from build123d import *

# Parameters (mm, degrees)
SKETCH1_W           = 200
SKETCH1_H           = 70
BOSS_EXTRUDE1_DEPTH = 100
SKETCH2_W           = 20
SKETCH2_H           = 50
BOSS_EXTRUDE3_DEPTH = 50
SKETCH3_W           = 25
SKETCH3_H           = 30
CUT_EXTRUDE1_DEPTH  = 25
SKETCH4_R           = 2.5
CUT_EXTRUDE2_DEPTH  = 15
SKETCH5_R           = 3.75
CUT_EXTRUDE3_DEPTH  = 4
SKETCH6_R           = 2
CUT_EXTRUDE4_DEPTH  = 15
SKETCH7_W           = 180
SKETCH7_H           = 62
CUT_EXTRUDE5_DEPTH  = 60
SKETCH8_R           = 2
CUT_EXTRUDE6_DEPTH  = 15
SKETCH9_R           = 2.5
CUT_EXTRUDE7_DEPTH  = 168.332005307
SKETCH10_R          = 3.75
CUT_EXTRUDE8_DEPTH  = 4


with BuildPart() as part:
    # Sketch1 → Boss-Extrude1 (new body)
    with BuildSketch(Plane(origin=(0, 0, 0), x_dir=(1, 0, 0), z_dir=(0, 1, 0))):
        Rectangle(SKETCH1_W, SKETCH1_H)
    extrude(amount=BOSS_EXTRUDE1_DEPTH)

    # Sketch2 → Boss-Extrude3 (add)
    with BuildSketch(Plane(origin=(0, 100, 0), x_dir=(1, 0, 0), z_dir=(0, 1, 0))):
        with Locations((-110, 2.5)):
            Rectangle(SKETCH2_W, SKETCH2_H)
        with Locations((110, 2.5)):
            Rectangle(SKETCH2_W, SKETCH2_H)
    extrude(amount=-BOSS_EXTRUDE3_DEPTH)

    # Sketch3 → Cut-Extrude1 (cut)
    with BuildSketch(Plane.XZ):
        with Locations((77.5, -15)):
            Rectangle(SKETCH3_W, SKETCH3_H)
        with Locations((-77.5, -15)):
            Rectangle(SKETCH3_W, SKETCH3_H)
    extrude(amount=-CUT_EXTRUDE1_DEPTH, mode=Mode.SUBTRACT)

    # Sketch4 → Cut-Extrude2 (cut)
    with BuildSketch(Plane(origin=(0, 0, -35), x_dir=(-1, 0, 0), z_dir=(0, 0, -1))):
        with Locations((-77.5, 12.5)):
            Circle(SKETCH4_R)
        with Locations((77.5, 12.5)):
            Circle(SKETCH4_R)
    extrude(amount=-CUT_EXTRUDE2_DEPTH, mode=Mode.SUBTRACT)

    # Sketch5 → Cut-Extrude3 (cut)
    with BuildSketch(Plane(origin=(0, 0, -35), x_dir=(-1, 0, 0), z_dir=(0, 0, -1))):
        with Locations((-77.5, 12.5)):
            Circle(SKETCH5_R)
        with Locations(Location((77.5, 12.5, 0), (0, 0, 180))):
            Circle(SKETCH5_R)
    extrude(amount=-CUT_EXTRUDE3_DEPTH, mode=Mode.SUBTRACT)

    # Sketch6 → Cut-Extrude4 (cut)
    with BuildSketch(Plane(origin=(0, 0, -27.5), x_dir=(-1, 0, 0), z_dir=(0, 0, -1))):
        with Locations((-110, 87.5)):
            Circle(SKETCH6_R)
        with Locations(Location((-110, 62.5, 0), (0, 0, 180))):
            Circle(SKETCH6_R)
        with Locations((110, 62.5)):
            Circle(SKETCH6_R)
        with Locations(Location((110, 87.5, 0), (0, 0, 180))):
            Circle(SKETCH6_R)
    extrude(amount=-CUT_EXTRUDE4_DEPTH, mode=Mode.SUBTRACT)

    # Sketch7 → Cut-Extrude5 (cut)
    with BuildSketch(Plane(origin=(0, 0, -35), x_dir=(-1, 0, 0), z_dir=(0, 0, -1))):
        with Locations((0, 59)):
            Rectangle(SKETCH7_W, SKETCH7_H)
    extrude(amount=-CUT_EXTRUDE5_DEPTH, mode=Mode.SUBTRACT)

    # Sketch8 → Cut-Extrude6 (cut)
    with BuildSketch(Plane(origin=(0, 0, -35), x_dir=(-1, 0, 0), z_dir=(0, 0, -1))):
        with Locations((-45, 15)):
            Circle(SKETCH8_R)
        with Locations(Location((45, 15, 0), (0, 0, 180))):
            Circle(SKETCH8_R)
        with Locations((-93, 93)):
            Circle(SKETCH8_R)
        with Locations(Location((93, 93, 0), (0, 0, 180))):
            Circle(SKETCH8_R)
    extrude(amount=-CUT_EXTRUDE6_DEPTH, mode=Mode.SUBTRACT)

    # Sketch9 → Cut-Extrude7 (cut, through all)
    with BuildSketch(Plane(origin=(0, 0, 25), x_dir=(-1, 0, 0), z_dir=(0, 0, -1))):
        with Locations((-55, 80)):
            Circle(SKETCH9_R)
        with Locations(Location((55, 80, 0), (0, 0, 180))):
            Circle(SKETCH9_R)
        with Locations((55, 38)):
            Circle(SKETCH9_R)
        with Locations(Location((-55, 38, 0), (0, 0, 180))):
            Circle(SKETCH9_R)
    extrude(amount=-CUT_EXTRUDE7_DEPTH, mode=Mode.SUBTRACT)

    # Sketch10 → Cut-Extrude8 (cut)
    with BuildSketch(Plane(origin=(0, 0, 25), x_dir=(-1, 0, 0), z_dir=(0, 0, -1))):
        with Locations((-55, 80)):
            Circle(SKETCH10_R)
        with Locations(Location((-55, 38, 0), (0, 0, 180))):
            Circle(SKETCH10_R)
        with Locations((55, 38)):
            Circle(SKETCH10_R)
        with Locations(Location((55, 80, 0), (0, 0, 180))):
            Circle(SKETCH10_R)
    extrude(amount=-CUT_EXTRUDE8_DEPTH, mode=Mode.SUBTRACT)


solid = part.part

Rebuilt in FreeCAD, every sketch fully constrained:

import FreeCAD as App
import Part
import Sketcher

V = App.Vector
Q = App.Units.Quantity

doc = App.newDocument("Part")
body = doc.addObject("PartDesign::Body", "Body")

# Sketch on XZ plane
sketch1 = body.newObject("Sketcher::SketchObject", "Sketch")
sketch1.AttachmentSupport = (doc.getObject("XZ_Plane"), [""])
sketch1.MapMode = "FlatFace"
sketch1.addGeometry(Part.LineSegment(V(-100, -35, 0), V(-100, 35, 0)), False)
sketch1.addGeometry(Part.LineSegment(V(-100, 35, 0), V(100, 35, 0)), False)
sketch1.addGeometry(Part.LineSegment(V(100, 35, 0), V(100, -35, 0)), False)
sketch1.addGeometry(Part.LineSegment(V(100, -35, 0), V(-100, -35, 0)), False)
sketch1.addConstraint(Sketcher.Constraint("Coincident", 0, 2, 1, 1))
sketch1.addConstraint(Sketcher.Constraint("Coincident", 1, 2, 2, 1))
sketch1.addConstraint(Sketcher.Constraint("Coincident", 2, 2, 3, 1))
sketch1.addConstraint(Sketcher.Constraint("Coincident", 3, 2, 0, 1))
sketch1.addConstraint(Sketcher.Constraint("Vertical", 0))
sketch1.addConstraint(Sketcher.Constraint("Horizontal", 1))
sketch1.addConstraint(Sketcher.Constraint("Vertical", 2))
sketch1.addConstraint(Sketcher.Constraint("Horizontal", 3))
sketch1.addConstraint(Sketcher.Constraint("Symmetric", 0, 2, 2, 2, -1, 1))
sketch1.addConstraint(Sketcher.Constraint("DistanceX", 1, 1, 1, 2, Q("200 mm")))
sketch1.addConstraint(Sketcher.Constraint("DistanceY", 0, 1, 0, 2, Q("70 mm")))
pad1 = body.newObject("PartDesign::Pad", "Pad")
pad1.Profile = sketch1
pad1.Length = 100
pad1.Reversed = True

# Sketch on XZ plane
sketch2 = body.newObject("Sketcher::SketchObject", "Sketch001")
sketch2.AttachmentSupport = (doc.getObject("XZ_Plane"), [""])
sketch2.MapMode = "FlatFace"
sketch2.AttachmentOffset = App.Placement(V(0, 0, -100), App.Rotation())
sketch2.addGeometry(Part.LineSegment(V(-120, -27.5, 0), V(-120, 22.5, 0)), False)
sketch2.addGeometry(Part.LineSegment(V(-120, 22.5, 0), V(-100, 22.5, 0)), False)
sketch2.addGeometry(Part.LineSegment(V(-100, 22.5, 0), V(-100, -27.5, 0)), False)
sketch2.addGeometry(Part.LineSegment(V(-100, -27.5, 0), V(-120, -27.5, 0)), False)
sketch2.addGeometry(Part.LineSegment(V(100, -27.5, 0), V(100, 22.5, 0)), False)
sketch2.addGeometry(Part.LineSegment(V(100, 22.5, 0), V(120, 22.5, 0)), False)
sketch2.addGeometry(Part.LineSegment(V(120, 22.5, 0), V(120, -27.5, 0)), False)
sketch2.addGeometry(Part.LineSegment(V(120, -27.5, 0), V(100, -27.5, 0)), False)
sketch2.addConstraint(Sketcher.Constraint("Coincident", 0, 2, 1, 1))
sketch2.addConstraint(Sketcher.Constraint("Coincident", 1, 2, 2, 1))
sketch2.addConstraint(Sketcher.Constraint("Coincident", 2, 2, 3, 1))
sketch2.addConstraint(Sketcher.Constraint("Coincident", 3, 2, 0, 1))
sketch2.addConstraint(Sketcher.Constraint("Coincident", 4, 2, 5, 1))
sketch2.addConstraint(Sketcher.Constraint("Coincident", 5, 2, 6, 1))
sketch2.addConstraint(Sketcher.Constraint("Coincident", 6, 2, 7, 1))
sketch2.addConstraint(Sketcher.Constraint("Coincident", 7, 2, 4, 1))
sketch2.addConstraint(Sketcher.Constraint("Vertical", 0))
sketch2.addConstraint(Sketcher.Constraint("Horizontal", 1))
sketch2.addConstraint(Sketcher.Constraint("Vertical", 2))
sketch2.addConstraint(Sketcher.Constraint("Horizontal", 3))
sketch2.addConstraint(Sketcher.Constraint("Vertical", 4))
sketch2.addConstraint(Sketcher.Constraint("Horizontal", 5))
sketch2.addConstraint(Sketcher.Constraint("Vertical", 6))
sketch2.addConstraint(Sketcher.Constraint("Horizontal", 7))
sketch2.addConstraint(Sketcher.Constraint("Symmetric", 1, 2, 4, 2, -2))
sketch2.addConstraint(Sketcher.Constraint("Symmetric", 3, 2, 6, 2, -2))
sketch2.addConstraint(Sketcher.Constraint("DistanceX", 1, 1, 1, 2, Q("20 mm")))
sketch2.addConstraint(Sketcher.Constraint("DistanceY", 0, 1, 0, 2, Q("50 mm")))
sketch2.addConstraint(Sketcher.Constraint("DistanceX", 0, 2, -1, 1, Q("120 mm")))
sketch2.addConstraint(Sketcher.Constraint("DistanceY", -1, 1, 0, 2, Q("22.5 mm")))
pad2 = body.newObject("PartDesign::Pad", "Pad001")
pad2.Profile = sketch2
pad2.Length = 50

# Sketch on XZ plane
sketch3 = body.newObject("Sketcher::SketchObject", "Sketch002")
sketch3.AttachmentSupport = (doc.getObject("XZ_Plane"), [""])
sketch3.MapMode = "FlatFace"
sketch3.addGeometry(Part.LineSegment(V(65, 0, 0), V(65, -30, 0)), False)
sketch3.addGeometry(Part.LineSegment(V(65, -30, 0), V(90, -30, 0)), False)
sketch3.addGeometry(Part.LineSegment(V(90, -30, 0), V(90, 0, 0)), False)
sketch3.addGeometry(Part.LineSegment(V(90, 0, 0), V(65, 0, 0)), False)
sketch3.addGeometry(Part.LineSegment(V(-90, 0, 0), V(-90, -30, 0)), False)
sketch3.addGeometry(Part.LineSegment(V(-90, -30, 0), V(-65, -30, 0)), False)
sketch3.addGeometry(Part.LineSegment(V(-65, -30, 0), V(-65, 0, 0)), False)
sketch3.addGeometry(Part.LineSegment(V(-65, 0, 0), V(-90, 0, 0)), False)
sketch3.addConstraint(Sketcher.Constraint("Coincident", 0, 2, 1, 1))
sketch3.addConstraint(Sketcher.Constraint("Coincident", 1, 2, 2, 1))
sketch3.addConstraint(Sketcher.Constraint("Coincident", 2, 2, 3, 1))
sketch3.addConstraint(Sketcher.Constraint("Coincident", 3, 2, 0, 1))
sketch3.addConstraint(Sketcher.Constraint("Coincident", 4, 2, 5, 1))
sketch3.addConstraint(Sketcher.Constraint("Coincident", 5, 2, 6, 1))
sketch3.addConstraint(Sketcher.Constraint("Coincident", 6, 2, 7, 1))
sketch3.addConstraint(Sketcher.Constraint("Coincident", 7, 2, 4, 1))
sketch3.addConstraint(Sketcher.Constraint("Vertical", 0))
sketch3.addConstraint(Sketcher.Constraint("Horizontal", 1))
sketch3.addConstraint(Sketcher.Constraint("Vertical", 2))
sketch3.addConstraint(Sketcher.Constraint("Horizontal", 3))
sketch3.addConstraint(Sketcher.Constraint("Vertical", 4))
sketch3.addConstraint(Sketcher.Constraint("Horizontal", 5))
sketch3.addConstraint(Sketcher.Constraint("Vertical", 6))
sketch3.addConstraint(Sketcher.Constraint("Horizontal", 7))
sketch3.addConstraint(Sketcher.Constraint("Symmetric", 3, 2, 6, 2, -1, 1))
sketch3.addConstraint(Sketcher.Constraint("Symmetric", 1, 2, 4, 2, -2))
sketch3.addConstraint(Sketcher.Constraint("PointOnObject", 2, 2, -1))
sketch3.addConstraint(Sketcher.Constraint("DistanceX", 1, 1, 1, 2, Q("25 mm")))
sketch3.addConstraint(Sketcher.Constraint("DistanceY", 0, 2, 0, 1, Q("30 mm")))
sketch3.addConstraint(Sketcher.Constraint("DistanceX", -1, 1, 0, 2, Q("65 mm")))
pocket1 = body.newObject("PartDesign::Pocket", "Pocket")
pocket1.Profile = sketch3
pocket1.Length = 25

# Sketch on XY plane
sketch4 = body.newObject("Sketcher::SketchObject", "Sketch003")
sketch4.AttachmentSupport = (doc.getObject("XY_Plane"), [""])
sketch4.MapMode = "FlatFace"
sketch4.AttachmentOffset = App.Placement(V(0, 0, -35), App.Rotation())
sketch4.addGeometry(Part.Circle(V(77.5, 12.5, 0), V(0, 0, 1), 2.5), False)
sketch4.addGeometry(Part.Circle(V(-77.5, 12.5, 0), V(0, 0, 1), 2.5), False)
sketch4.addConstraint(Sketcher.Constraint("Equal", 0, 1))
sketch4.addConstraint(Sketcher.Constraint("Symmetric", 0, 3, 1, 3, -2))
sketch4.addConstraint(Sketcher.Constraint("Diameter", 0, Q("5 mm")))
sketch4.addConstraint(Sketcher.Constraint("DistanceX", 1, 3, 0, 3, Q("155 mm")))
sketch4.addConstraint(Sketcher.Constraint("DistanceY", -1, 1, 0, 3, Q("12.5 mm")))
pocket2 = body.newObject("PartDesign::Pocket", "Pocket001")
pocket2.Profile = sketch4
pocket2.Length = 15
pocket2.Reversed = True

# Sketch on XY plane
sketch5 = body.newObject("Sketcher::SketchObject", "Sketch004")
sketch5.AttachmentSupport = (doc.getObject("XY_Plane"), [""])
sketch5.MapMode = "FlatFace"
sketch5.AttachmentOffset = App.Placement(V(0, 0, -35), App.Rotation())
sketch5.addGeometry(Part.Circle(V(77.5, 12.5, 0), V(0, 0, 1), 3.75), False)
sketch5.addGeometry(Part.Circle(V(-77.5, 12.5, 0), V(0, 0, 1), 3.75), False)
sketch5.addConstraint(Sketcher.Constraint("Equal", 0, 1))
sketch5.addConstraint(Sketcher.Constraint("Symmetric", 0, 3, 1, 3, -2))
sketch5.addConstraint(Sketcher.Constraint("Diameter", 0, Q("7.5 mm")))
sketch5.addConstraint(Sketcher.Constraint("DistanceX", 1, 3, 0, 3, Q("155 mm")))
sketch5.addConstraint(Sketcher.Constraint("DistanceY", -1, 1, 0, 3, Q("12.5 mm")))
pocket3 = body.newObject("PartDesign::Pocket", "Pocket002")
pocket3.Profile = sketch5
pocket3.Length = 4
pocket3.Reversed = True

# Sketch on XY plane
sketch6 = body.newObject("Sketcher::SketchObject", "Sketch005")
sketch6.AttachmentSupport = (doc.getObject("XY_Plane"), [""])
sketch6.MapMode = "FlatFace"
sketch6.AttachmentOffset = App.Placement(V(0, 0, -27.5), App.Rotation())
sketch6.addGeometry(Part.Circle(V(110, 87.5, 0), V(0, 0, 1), 2), False)
sketch6.addGeometry(Part.Circle(V(110, 62.5, 0), V(0, 0, 1), 2), False)
sketch6.addGeometry(Part.Circle(V(-110, 62.5, 0), V(0, 0, 1), 2), False)
sketch6.addGeometry(Part.Circle(V(-110, 87.5, 0), V(0, 0, 1), 2), False)
sketch6.addConstraint(Sketcher.Constraint("Equal", 0, 1))
sketch6.addConstraint(Sketcher.Constraint("Equal", 1, 2))
sketch6.addConstraint(Sketcher.Constraint("Equal", 2, 3))
sketch6.addConstraint(Sketcher.Constraint("Symmetric", 1, 3, 2, 3, -2))
sketch6.addConstraint(Sketcher.Constraint("Symmetric", 0, 3, 3, 3, -2))
sketch6.addConstraint(Sketcher.Constraint("Vertical", 0, 3, 1, 3))
sketch6.addConstraint(Sketcher.Constraint("Diameter", 0, Q("4 mm")))
sketch6.addConstraint(Sketcher.Constraint("DistanceX", -1, 1, 0, 3, Q("110 mm")))
sketch6.addConstraint(Sketcher.Constraint("DistanceY", 1, 3, 0, 3, Q("25 mm")))
sketch6.addConstraint(Sketcher.Constraint("DistanceY", -1, 1, 0, 3, Q("87.5 mm")))
pocket4 = body.newObject("PartDesign::Pocket", "Pocket003")
pocket4.Profile = sketch6
pocket4.Length = 15
pocket4.Reversed = True

# Sketch on XY plane
sketch7 = body.newObject("Sketcher::SketchObject", "Sketch006")
sketch7.AttachmentSupport = (doc.getObject("XY_Plane"), [""])
sketch7.MapMode = "FlatFace"
sketch7.AttachmentOffset = App.Placement(V(0, 0, -35), App.Rotation())
sketch7.addGeometry(Part.LineSegment(V(90, 90, 0), V(90, 28, 0)), False)
sketch7.addGeometry(Part.LineSegment(V(90, 28, 0), V(-90, 28, 0)), False)
sketch7.addGeometry(Part.LineSegment(V(-90, 28, 0), V(-90, 90, 0)), False)
sketch7.addGeometry(Part.LineSegment(V(-90, 90, 0), V(90, 90, 0)), False)
sketch7.addConstraint(Sketcher.Constraint("Coincident", 0, 2, 1, 1))
sketch7.addConstraint(Sketcher.Constraint("Coincident", 1, 2, 2, 1))
sketch7.addConstraint(Sketcher.Constraint("Coincident", 2, 2, 3, 1))
sketch7.addConstraint(Sketcher.Constraint("Coincident", 3, 2, 0, 1))
sketch7.addConstraint(Sketcher.Constraint("Vertical", 0))
sketch7.addConstraint(Sketcher.Constraint("Horizontal", 1))
sketch7.addConstraint(Sketcher.Constraint("Vertical", 2))
sketch7.addConstraint(Sketcher.Constraint("Horizontal", 3))
sketch7.addConstraint(Sketcher.Constraint("DistanceX", 1, 2, 1, 1, Q("180 mm")))
sketch7.addConstraint(Sketcher.Constraint("DistanceY", 0, 2, 0, 1, Q("62 mm")))
sketch7.addConstraint(Sketcher.Constraint("DistanceX", -1, 1, 0, 2, Q("90 mm")))
sketch7.addConstraint(Sketcher.Constraint("DistanceY", -1, 1, 0, 2, Q("28 mm")))
pocket5 = body.newObject("PartDesign::Pocket", "Pocket004")
pocket5.Profile = sketch7
pocket5.Length = 60
pocket5.Reversed = True

# Sketch on XY plane
sketch8 = body.newObject("Sketcher::SketchObject", "Sketch007")
sketch8.AttachmentSupport = (doc.getObject("XY_Plane"), [""])
sketch8.MapMode = "FlatFace"
sketch8.AttachmentOffset = App.Placement(V(0, 0, -35), App.Rotation())
sketch8.addGeometry(Part.Circle(V(45, 15, 0), V(0, 0, 1), 2), False)
sketch8.addGeometry(Part.Circle(V(-45, 15, 0), V(0, 0, 1), 2), False)
sketch8.addGeometry(Part.Circle(V(93, 93, 0), V(0, 0, 1), 2), False)
sketch8.addGeometry(Part.Circle(V(-93, 93, 0), V(0, 0, 1), 2), False)
sketch8.addConstraint(Sketcher.Constraint("Equal", 0, 1))
sketch8.addConstraint(Sketcher.Constraint("Equal", 1, 2))
sketch8.addConstraint(Sketcher.Constraint("Equal", 2, 3))
sketch8.addConstraint(Sketcher.Constraint("Symmetric", 0, 3, 1, 3, -2))
sketch8.addConstraint(Sketcher.Constraint("Symmetric", 2, 3, 3, 3, -2))
sketch8.addConstraint(Sketcher.Constraint("Diameter", 0, Q("4 mm")))
sketch8.addConstraint(Sketcher.Constraint("DistanceX", -1, 1, 0, 3, Q("45 mm")))
sketch8.addConstraint(Sketcher.Constraint("DistanceY", -1, 1, 0, 3, Q("15 mm")))
sketch8.addConstraint(Sketcher.Constraint("DistanceX", -1, 1, 2, 3, Q("93 mm")))
sketch8.addConstraint(Sketcher.Constraint("DistanceY", -1, 1, 2, 3, Q("93 mm")))
pocket6 = body.newObject("PartDesign::Pocket", "Pocket005")
pocket6.Profile = sketch8
pocket6.Length = 15
pocket6.Reversed = True

# Sketch on XY plane
sketch9 = body.newObject("Sketcher::SketchObject", "Sketch008")
sketch9.AttachmentSupport = (doc.getObject("XY_Plane"), [""])
sketch9.MapMode = "FlatFace"
sketch9.AttachmentOffset = App.Placement(V(0, 0, 25), App.Rotation())
sketch9.addGeometry(Part.Circle(V(55, 80, 0), V(0, 0, 1), 2.5), False)
sketch9.addGeometry(Part.Circle(V(-55, 80, 0), V(0, 0, 1), 2.5), False)
sketch9.addGeometry(Part.Circle(V(-55, 38, 0), V(0, 0, 1), 2.5), False)
sketch9.addGeometry(Part.Circle(V(55, 38, 0), V(0, 0, 1), 2.5), False)
sketch9.addConstraint(Sketcher.Constraint("Equal", 0, 1))
sketch9.addConstraint(Sketcher.Constraint("Equal", 1, 2))
sketch9.addConstraint(Sketcher.Constraint("Equal", 2, 3))
sketch9.addConstraint(Sketcher.Constraint("Symmetric", 0, 3, 1, 3, -2))
sketch9.addConstraint(Sketcher.Constraint("Symmetric", 2, 3, 3, 3, -2))
sketch9.addConstraint(Sketcher.Constraint("Vertical", 1, 3, 2, 3))
sketch9.addConstraint(Sketcher.Constraint("Diameter", 0, Q("5 mm")))
sketch9.addConstraint(Sketcher.Constraint("DistanceX", -1, 1, 0, 3, Q("55 mm")))
sketch9.addConstraint(Sketcher.Constraint("DistanceY", -1, 1, 0, 3, Q("80 mm")))
sketch9.addConstraint(Sketcher.Constraint("DistanceY", -1, 1, 2, 3, Q("38 mm")))
pocket7 = body.newObject("PartDesign::Pocket", "Pocket006")
pocket7.Profile = sketch9
pocket7.Type = "ThroughAll"
pocket7.Reversed = True

# Sketch on XY plane
sketch10 = body.newObject("Sketcher::SketchObject", "Sketch009")
sketch10.AttachmentSupport = (doc.getObject("XY_Plane"), [""])
sketch10.MapMode = "FlatFace"
sketch10.AttachmentOffset = App.Placement(V(0, 0, 25), App.Rotation())
sketch10.addGeometry(Part.Circle(V(55, 80, 0), V(0, 0, 1), 3.75), False)
sketch10.addGeometry(Part.Circle(V(55, 38, 0), V(0, 0, 1), 3.75), False)
sketch10.addGeometry(Part.Circle(V(-55, 38, 0), V(0, 0, 1), 3.75), False)
sketch10.addGeometry(Part.Circle(V(-55, 80, 0), V(0, 0, 1), 3.75), False)
sketch10.addConstraint(Sketcher.Constraint("Equal", 0, 1))
sketch10.addConstraint(Sketcher.Constraint("Equal", 1, 2))
sketch10.addConstraint(Sketcher.Constraint("Equal", 2, 3))
sketch10.addConstraint(Sketcher.Constraint("Symmetric", 1, 3, 2, 3, -2))
sketch10.addConstraint(Sketcher.Constraint("Symmetric", 0, 3, 3, 3, -2))
sketch10.addConstraint(Sketcher.Constraint("Vertical", 0, 3, 1, 3))
sketch10.addConstraint(Sketcher.Constraint("Diameter", 0, Q("7.5 mm")))
sketch10.addConstraint(Sketcher.Constraint("DistanceX", -1, 1, 0, 3, Q("55 mm")))
sketch10.addConstraint(Sketcher.Constraint("DistanceY", -1, 1, 0, 3, Q("80 mm")))
sketch10.addConstraint(Sketcher.Constraint("DistanceY", -1, 1, 1, 3, Q("38 mm")))
pocket8 = body.newObject("PartDesign::Pocket", "Pocket007")
pocket8.Profile = sketch10
pocket8.Length = 4
pocket8.Reversed = True

doc.recompute()
